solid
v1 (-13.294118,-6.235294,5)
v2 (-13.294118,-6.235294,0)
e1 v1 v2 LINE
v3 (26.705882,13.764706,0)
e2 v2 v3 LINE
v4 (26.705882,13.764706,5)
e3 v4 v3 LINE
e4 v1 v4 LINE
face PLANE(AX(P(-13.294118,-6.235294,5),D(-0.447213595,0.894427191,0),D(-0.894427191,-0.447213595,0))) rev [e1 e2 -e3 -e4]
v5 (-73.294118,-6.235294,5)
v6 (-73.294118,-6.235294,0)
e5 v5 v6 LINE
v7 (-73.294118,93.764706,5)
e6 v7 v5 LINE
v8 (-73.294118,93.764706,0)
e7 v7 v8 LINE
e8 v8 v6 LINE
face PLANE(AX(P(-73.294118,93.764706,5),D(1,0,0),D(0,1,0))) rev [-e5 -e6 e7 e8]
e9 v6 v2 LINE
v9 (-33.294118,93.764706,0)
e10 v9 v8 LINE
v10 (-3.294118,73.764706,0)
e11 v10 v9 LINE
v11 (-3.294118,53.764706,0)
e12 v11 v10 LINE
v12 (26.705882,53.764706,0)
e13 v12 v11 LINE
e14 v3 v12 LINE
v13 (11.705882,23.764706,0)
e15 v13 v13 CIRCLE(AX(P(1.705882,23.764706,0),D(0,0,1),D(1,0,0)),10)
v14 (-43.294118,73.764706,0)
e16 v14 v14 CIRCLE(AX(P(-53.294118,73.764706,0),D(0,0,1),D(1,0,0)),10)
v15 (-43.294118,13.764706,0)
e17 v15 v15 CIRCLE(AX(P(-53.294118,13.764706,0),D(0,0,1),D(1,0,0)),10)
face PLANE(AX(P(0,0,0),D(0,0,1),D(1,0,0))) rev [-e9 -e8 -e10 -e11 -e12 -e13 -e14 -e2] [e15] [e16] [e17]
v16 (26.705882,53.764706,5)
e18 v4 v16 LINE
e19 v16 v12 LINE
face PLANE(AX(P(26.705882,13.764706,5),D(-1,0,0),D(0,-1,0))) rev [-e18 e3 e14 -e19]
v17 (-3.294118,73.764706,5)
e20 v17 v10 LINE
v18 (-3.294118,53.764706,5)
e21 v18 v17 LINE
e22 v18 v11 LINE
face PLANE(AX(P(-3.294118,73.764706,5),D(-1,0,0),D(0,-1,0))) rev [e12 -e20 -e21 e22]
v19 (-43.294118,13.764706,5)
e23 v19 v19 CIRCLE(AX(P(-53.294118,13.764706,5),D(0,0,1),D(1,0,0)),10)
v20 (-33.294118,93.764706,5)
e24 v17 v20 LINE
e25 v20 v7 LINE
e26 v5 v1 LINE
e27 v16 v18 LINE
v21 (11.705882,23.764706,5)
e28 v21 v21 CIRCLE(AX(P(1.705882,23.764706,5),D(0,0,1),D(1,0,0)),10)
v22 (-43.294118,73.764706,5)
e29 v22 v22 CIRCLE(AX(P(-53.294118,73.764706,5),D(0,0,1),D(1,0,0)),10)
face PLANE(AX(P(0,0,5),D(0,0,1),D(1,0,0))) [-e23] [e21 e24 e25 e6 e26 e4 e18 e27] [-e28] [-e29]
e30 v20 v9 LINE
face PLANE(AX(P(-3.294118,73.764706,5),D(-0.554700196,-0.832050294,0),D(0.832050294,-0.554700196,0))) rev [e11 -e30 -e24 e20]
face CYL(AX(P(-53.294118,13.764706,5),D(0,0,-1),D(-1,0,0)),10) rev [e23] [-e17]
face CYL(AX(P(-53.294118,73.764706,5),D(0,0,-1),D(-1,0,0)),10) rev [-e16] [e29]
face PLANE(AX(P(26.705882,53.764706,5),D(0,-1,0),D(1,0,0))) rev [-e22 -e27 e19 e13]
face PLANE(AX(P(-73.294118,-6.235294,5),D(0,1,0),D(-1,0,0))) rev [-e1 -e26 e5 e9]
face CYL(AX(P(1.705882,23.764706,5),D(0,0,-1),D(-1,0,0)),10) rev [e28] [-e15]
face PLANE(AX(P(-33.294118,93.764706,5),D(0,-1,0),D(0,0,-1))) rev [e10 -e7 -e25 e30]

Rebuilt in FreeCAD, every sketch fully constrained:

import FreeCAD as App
import Part
import Sketcher
Q = App.Units.Quantity


def add_polygon(sketch, points):
    """Adds a closed chain of lines whose ends are joined by coincident constraints."""
    first, n = sketch.GeometryCount, len(points)
    for a, b in zip(points, points[1:] + points[:1]):
        sketch.addGeometry(Part.LineSegment(App.Vector(*a, 0), App.Vector(*b, 0)), False)
    for i in range(n):
        sketch.addConstraint(Sketcher.Constraint("Coincident", first + i, 2, first + (i + 1) % n, 1))

doc = App.newDocument("Part")
body = doc.addObject("PartDesign::Body", "Body")

# Sketch on XY plane
sketch1 = body.newObject("Sketcher::SketchObject", "Sketch")
sketch1.AttachmentSupport = (doc.getObject("XY_Plane"), [""])
sketch1.MapMode = "FlatFace"
add_polygon(sketch1, [(-73.294118, 93.764706), (-73.294118, -6.235294), (-13.294118, -6.235294), (26.705882, 13.764706), (26.705882, 53.764706), (-3.294118, 53.764706), (-3.294118, 73.764706), (-33.294118, 93.764706)])  # lines 0-7
sketch1.addGeometry(Part.Circle(App.Vector(-53.294118, 13.764706, 0), App.Vector(0, 0, 1), 10), False)  # 8
sketch1.addGeometry(Part.Circle(App.Vector(1.705882, 23.764706, 0), App.Vector(0, 0, 1), 10), False)  # 9
sketch1.addGeometry(Part.Circle(App.Vector(-53.294118, 73.764706, 0), App.Vector(0, 0, 1), 10), False)  # 10
sketch1.addConstraint(Sketcher.Constraint("Vertical", 0))
sketch1.addConstraint(Sketcher.Constraint("Horizontal", 1))
sketch1.addConstraint(Sketcher.Constraint("Vertical", 3))
sketch1.addConstraint(Sketcher.Constraint("Horizontal", 4))
sketch1.addConstraint(Sketcher.Constraint("Vertical", 5))
sketch1.addConstraint(Sketcher.Constraint("Horizontal", 7))
sketch1.addConstraint(Sketcher.Constraint("Equal", 8, 9))
sketch1.addConstraint(Sketcher.Constraint("Equal", 9, 10))
sketch1.addConstraint(Sketcher.Constraint("Horizontal", 8, 3, 2, 2))
sketch1.addConstraint(Sketcher.Constraint("Horizontal", 10, 3, 5, 2))
sketch1.addConstraint(Sketcher.Constraint("Vertical", 8, 3, 10, 3))
sketch1.addConstraint(Sketcher.Constraint("Equal", 7, 3))
sketch1.addConstraint(Sketcher.Constraint("Diameter", 8, Q("20 mm")))
sketch1.addConstraint(Sketcher.Constraint("DistanceX", 1, 1, 1, 2, Q("60 mm")))
sketch1.addConstraint(Sketcher.Constraint("DistanceX", 4, 2, 4, 1, Q("30 mm")))
sketch1.addConstraint(Sketcher.Constraint("DistanceX", 7, 2, 7, 1, Q("40 mm")))
sketch1.addConstraint(Sketcher.Constraint("DistanceY", 0, 2, 0, 1, Q("100 mm")))
sketch1.addConstraint(Sketcher.Constraint("DistanceY", 5, 1, 5, 2, Q("20 mm")))
sketch1.addConstraint(Sketcher.Constraint("DistanceX", 8, 3, 9, 3, Q("55 mm")))
sketch1.addConstraint(Sketcher.Constraint("DistanceY", 8, 3, 9, 3, Q("10 mm")))
sketch1.addConstraint(Sketcher.Constraint("DistanceX", 0, 2, 8, 3, Q("20 mm")))
sketch1.addConstraint(Sketcher.Constraint("DistanceY", 0, 2, 8, 3, Q("20 mm")))
sketch1.addConstraint(Sketcher.Constraint("DistanceX", 9, 3, 2, 2, Q("25 mm")))
sketch1.addConstraint(Sketcher.Constraint("DistanceX", 8, 3, -1, 1, Q("53.294118 mm")))
sketch1.addConstraint(Sketcher.Constraint("DistanceY", -1, 1, 8, 3, Q("13.764706 mm")))
pad1 = body.newObject("PartDesign::Pad", "Pad")
pad1.Profile = sketch1
pad1.Length = 5

doc.recompute()
